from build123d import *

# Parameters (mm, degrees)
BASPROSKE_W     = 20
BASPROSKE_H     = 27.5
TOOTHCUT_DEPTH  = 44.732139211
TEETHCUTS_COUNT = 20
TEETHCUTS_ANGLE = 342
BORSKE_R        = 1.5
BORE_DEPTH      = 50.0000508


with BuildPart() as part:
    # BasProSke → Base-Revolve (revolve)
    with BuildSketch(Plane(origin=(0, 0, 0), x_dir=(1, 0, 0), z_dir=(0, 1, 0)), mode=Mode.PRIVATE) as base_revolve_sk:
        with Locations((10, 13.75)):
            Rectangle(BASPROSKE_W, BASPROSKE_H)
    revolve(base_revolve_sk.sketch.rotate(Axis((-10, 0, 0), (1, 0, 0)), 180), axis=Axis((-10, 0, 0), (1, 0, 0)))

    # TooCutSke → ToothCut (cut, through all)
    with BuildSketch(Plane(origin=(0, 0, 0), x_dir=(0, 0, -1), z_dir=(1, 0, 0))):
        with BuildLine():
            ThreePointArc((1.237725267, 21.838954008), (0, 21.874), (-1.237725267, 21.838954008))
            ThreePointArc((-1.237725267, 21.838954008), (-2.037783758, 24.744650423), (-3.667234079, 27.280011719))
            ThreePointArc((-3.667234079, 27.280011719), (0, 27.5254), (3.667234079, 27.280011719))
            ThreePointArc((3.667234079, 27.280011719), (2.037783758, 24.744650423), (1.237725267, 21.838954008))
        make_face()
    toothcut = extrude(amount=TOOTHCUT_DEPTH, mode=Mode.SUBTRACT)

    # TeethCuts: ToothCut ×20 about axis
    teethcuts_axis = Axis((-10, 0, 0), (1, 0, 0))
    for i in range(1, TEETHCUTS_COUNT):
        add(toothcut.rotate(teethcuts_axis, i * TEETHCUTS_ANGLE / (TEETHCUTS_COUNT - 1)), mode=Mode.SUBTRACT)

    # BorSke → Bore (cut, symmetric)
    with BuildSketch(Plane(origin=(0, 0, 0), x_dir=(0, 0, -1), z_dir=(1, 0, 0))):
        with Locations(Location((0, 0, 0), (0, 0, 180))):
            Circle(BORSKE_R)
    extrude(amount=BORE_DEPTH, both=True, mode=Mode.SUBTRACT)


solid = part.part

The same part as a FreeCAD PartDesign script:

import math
import FreeCAD as App
import Part
import Sketcher
from FreeCAD import Vector
Q = App.Units.Quantity


def add_polygon(sketch, points):
    """Adds a closed chain of lines whose ends are joined by coincident constraints."""
    first, n = sketch.GeometryCount, len(points)
    for a, b in zip(points, points[1:] + points[:1]):
        sketch.addGeometry(Part.LineSegment(App.Vector(*a, 0), App.Vector(*b, 0)), False)
    for i in range(n):
        sketch.addConstraint(Sketcher.Constraint("Coincident", first + i, 2, first + (i + 1) % n, 1))

doc = App.newDocument("Part")
body = doc.addObject("PartDesign::Body", "Body")

# Sketch on XZ plane
sketch1 = body.newObject("Sketcher::SketchObject", "Sketch")
sketch1.AttachmentSupport = (doc.getObject("XZ_Plane"), [""])
sketch1.MapMode = "FlatFace"
add_polygon(sketch1, [(0, -28), (0, 0), (20, 0), (20, -28)])  # lines 0-3
sketch1.addConstraint([
    Sketcher.Constraint("Vertical", 0),
    Sketcher.Constraint("Horizontal", 1),
    Sketcher.Constraint("Vertical", 2),
    Sketcher.Constraint("Horizontal", 3),
    Sketcher.Constraint("Coincident", 0, 2, -1, 1),
    Sketcher.Constraint("DistanceX", 1, 1, 1, 2, Q("20 mm")),
    Sketcher.Constraint("DistanceY", 0, 1, 0, 2, Q("27.5 mm")),
])
revolution = body.newObject("PartDesign::Revolution", "Revolution")
revolution.Profile = sketch1
revolution.ReferenceAxis = (sketch1, ["H_Axis"])
revolution.Angle = 360

# Sketch on YZ plane
sketch2 = body.newObject("Sketcher::SketchObject", "Sketch001")
sketch2.AttachmentSupport = (doc.getObject("YZ_Plane"), [""])
sketch2.MapMode = "FlatFace"
sketch2.addGeometry([
    Part.ArcOfCircle(Part.Circle(Vector(0, 0, 0), Vector(0, 0, 1), 21.9), math.radians(-3.24), math.radians(3.24)),
    Part.ArcOfCircle(Part.Circle(Vector(20.7, -11.2, 0), Vector(0, 0, 1), 10), math.radians(49), math.radians(83)),
    Part.ArcOfCircle(Part.Circle(Vector(0, 0, 0), Vector(0, 0, 1), 27.5), math.radians(-7.66), math.radians(7.66)),
    Part.ArcOfCircle(Part.Circle(Vector(20.7, 11.2, 0), Vector(0, 0, 1), 10), math.radians(-83), math.radians(-49)),
], False)
sketch2.addConstraint([
    Sketcher.Constraint("Coincident", 0, 1, 1, 2),
    Sketcher.Constraint("Coincident", 1, 1, 2, 1),
    Sketcher.Constraint("Coincident", 2, 2, 3, 2),
    Sketcher.Constraint("Coincident", 3, 1, 0, 2),
    Sketcher.Constraint("Coincident", 0, 3, -1, 1),
    Sketcher.Constraint("Coincident", 2, 3, -1, 1),
    Sketcher.Constraint("Equal", 1, 3),
    Sketcher.Constraint("Symmetric", 1, 3, 3, 3, -1),
    Sketcher.Constraint("Radius", 1, Q("10 mm")),
    Sketcher.Constraint("Radius", 0, Q("21.874 mm")),
    Sketcher.Constraint("Radius", 2, Q("27.5254 mm")),
    Sketcher.Constraint("DistanceX", -1, 1, 1, 3, Q("20.667491 mm")),
    Sketcher.Constraint("DistanceY", 1, 3, -1, 1, Q("11.168872 mm")),
])
pocket1 = body.newObject("PartDesign::Pocket", "Pocket")
pocket1.Profile = sketch2
pocket1.Type = "ThroughAll"
pocket1.Reversed = True
doc.recompute()

polarpattern = body.newObject("PartDesign::PolarPattern", "PolarPattern")
polarpattern.Originals = [pocket1]
polarpattern.Axis = (doc.getObject("X_Axis"), [""])
polarpattern.Angle = 360
polarpattern.Occurrences = 20
body.Tip = polarpattern

# Sketch on YZ plane
sketch3 = body.newObject("Sketcher::SketchObject", "Sketch002")
sketch3.AttachmentSupport = (doc.getObject("YZ_Plane"), [""])
sketch3.MapMode = "FlatFace"
sketch3.addGeometry(Part.Circle(Vector(0, 0, 0), Vector(0, 0, 1), 1.5), False)
sketch3.addConstraint([
    Sketcher.Constraint("Coincident", 0, 3, -1, 1),
    Sketcher.Constraint("Diameter", 0, Q("3 mm")),
])
pocket2 = body.newObject("PartDesign::Pocket", "Pocket001")
pocket2.Profile = sketch3
pocket2.Length = 100.000102
pocket2.Midplane = True

doc.recompute()
